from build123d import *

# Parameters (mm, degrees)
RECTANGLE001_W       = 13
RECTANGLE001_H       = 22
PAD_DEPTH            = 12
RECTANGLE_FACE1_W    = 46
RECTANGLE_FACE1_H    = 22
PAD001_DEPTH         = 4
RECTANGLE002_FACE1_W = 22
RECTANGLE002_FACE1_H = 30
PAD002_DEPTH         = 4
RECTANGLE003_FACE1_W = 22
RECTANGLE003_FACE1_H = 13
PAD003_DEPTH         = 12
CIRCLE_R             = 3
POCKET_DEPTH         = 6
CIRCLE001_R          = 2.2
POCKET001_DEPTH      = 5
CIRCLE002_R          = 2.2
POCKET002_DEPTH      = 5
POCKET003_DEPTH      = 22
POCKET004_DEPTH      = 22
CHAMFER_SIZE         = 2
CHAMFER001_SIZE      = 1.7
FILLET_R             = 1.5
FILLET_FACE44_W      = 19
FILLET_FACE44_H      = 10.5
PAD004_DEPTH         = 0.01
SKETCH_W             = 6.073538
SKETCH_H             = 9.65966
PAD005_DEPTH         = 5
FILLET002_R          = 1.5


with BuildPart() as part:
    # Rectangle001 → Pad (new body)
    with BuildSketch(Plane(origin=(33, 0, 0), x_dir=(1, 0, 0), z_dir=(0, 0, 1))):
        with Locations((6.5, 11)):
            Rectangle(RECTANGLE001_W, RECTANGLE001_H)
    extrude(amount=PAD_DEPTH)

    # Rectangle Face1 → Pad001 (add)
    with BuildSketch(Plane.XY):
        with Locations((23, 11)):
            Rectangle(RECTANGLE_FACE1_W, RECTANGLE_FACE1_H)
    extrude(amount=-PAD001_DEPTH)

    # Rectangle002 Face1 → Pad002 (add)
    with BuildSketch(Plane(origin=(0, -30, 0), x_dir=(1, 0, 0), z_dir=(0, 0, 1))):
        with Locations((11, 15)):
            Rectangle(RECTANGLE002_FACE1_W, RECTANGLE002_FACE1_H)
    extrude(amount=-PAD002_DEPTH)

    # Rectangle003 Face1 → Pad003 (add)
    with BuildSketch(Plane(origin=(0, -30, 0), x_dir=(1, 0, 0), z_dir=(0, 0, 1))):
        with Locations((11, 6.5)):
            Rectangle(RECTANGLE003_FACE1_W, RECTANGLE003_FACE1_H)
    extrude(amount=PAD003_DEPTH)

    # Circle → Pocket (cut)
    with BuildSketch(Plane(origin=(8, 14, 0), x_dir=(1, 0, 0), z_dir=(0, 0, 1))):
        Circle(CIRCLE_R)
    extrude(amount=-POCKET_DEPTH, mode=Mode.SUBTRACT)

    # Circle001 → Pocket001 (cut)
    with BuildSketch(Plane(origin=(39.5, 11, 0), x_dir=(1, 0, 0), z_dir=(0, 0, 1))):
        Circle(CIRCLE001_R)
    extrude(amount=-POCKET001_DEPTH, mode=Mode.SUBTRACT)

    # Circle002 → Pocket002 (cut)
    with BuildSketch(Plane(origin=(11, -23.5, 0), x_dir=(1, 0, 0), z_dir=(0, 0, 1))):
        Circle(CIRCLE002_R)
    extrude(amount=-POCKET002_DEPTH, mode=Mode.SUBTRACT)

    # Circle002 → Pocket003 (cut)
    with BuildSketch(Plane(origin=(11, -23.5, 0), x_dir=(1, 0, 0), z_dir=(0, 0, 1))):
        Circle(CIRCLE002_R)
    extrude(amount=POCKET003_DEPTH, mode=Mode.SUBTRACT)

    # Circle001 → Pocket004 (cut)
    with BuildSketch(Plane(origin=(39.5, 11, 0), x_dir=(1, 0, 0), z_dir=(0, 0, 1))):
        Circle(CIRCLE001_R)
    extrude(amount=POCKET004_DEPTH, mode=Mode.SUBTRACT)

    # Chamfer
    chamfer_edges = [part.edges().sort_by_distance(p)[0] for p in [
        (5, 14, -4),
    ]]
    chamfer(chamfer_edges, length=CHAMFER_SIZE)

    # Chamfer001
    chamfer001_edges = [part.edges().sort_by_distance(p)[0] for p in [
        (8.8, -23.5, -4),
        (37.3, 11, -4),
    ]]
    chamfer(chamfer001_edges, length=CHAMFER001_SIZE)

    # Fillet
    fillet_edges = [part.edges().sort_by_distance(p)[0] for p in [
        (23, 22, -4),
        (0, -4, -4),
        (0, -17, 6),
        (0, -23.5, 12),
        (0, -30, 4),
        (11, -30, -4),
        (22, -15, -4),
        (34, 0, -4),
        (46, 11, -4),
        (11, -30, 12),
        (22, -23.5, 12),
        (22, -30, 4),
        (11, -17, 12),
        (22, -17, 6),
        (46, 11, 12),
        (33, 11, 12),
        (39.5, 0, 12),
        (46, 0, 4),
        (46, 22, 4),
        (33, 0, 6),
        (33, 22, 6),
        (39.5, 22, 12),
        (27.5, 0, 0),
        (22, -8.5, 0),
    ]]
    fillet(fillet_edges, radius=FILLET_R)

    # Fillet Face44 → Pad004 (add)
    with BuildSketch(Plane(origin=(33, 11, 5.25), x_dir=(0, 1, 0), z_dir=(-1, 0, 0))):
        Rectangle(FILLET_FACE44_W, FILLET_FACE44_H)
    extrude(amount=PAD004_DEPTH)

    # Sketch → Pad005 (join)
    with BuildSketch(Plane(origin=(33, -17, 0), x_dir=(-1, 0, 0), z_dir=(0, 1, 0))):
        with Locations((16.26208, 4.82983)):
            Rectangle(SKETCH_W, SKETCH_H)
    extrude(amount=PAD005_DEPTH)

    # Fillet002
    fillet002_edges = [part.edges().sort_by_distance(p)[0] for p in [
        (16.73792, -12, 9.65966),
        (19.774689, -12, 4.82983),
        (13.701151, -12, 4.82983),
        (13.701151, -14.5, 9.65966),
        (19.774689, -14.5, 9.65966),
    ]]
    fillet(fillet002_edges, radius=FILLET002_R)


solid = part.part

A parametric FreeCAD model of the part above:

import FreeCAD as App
import Part
import Sketcher


def edges_at(feature, points):
    """Names of the edges that pass closest to the given points."""
    edges = feature.Shape.Edges
    near = lambda p: min(range(len(edges)), key=lambda i: edges[i].distToShape(Part.Vertex(*p))[0])
    return sorted({f"Edge{near(p) + 1}" for p in points})

doc = App.newDocument("Part")
body = doc.addObject("PartDesign::Body", "Body")

sketch1 = body.newObject("Sketcher::SketchObject", "Sketch")
sketch1.AttachmentSupport = (doc.getObject("XY_Plane"), [""])
sketch1.MapMode = "FlatFace"
sketch1.addGeometry([
    Part.LineSegment(App.Vector(33, 22, 0), App.Vector(33, 0, 0)),
    Part.LineSegment(App.Vector(33, 0, 0), App.Vector(46, 0, 0)),
    Part.LineSegment(App.Vector(46, 0, 0), App.Vector(46, 22, 0)),
    Part.LineSegment(App.Vector(46, 22, 0), App.Vector(33, 22, 0)),
], False)
sketch1.addConstraint([
    Sketcher.Constraint("Coincident", 0, 2, 1, 1),
    Sketcher.Constraint("Coincident", 1, 2, 2, 1),
    Sketcher.Constraint("Coincident", 2, 2, 3, 1),
    Sketcher.Constraint("Coincident", 3, 2, 0, 1),
    Sketcher.Constraint("Vertical", 0),
    Sketcher.Constraint("Horizontal", 1),
    Sketcher.Constraint("Vertical", 2),
    Sketcher.Constraint("Horizontal", 3),
    Sketcher.Constraint("PointOnObject", 0, 2, -1),
    Sketcher.Constraint("DistanceX", 1, 1, 1, 2, 13.0),
    Sketcher.Constraint("DistanceY", 0, 2, 0, 1, 22.0),
    Sketcher.Constraint("DistanceX", -1, 1, 0, 2, 33.0),
])
pad1 = body.newObject("PartDesign::Pad", "Pad")
pad1.Profile = sketch1
pad1.Length = 12

sketch2 = body.newObject("Sketcher::SketchObject", "Sketch001")
sketch2.AttachmentSupport = (doc.getObject("XY_Plane"), [""])
sketch2.MapMode = "FlatFace"
sketch2.addGeometry([
    Part.LineSegment(App.Vector(0, 22, 0), App.Vector(0, 0, 0)),
    Part.LineSegment(App.Vector(0, 0, 0), App.Vector(46, 0, 0)),
    Part.LineSegment(App.Vector(46, 0, 0), App.Vector(46, 22, 0)),
    Part.LineSegment(App.Vector(46, 22, 0), App.Vector(0, 22, 0)),
], False)
sketch2.addConstraint([
    Sketcher.Constraint("Coincident", 0, 2, 1, 1),
    Sketcher.Constraint("Coincident", 1, 2, 2, 1),
    Sketcher.Constraint("Coincident", 2, 2, 3, 1),
    Sketcher.Constraint("Coincident", 3, 2, 0, 1),
    Sketcher.Constraint("Vertical", 0),
    Sketcher.Constraint("Horizontal", 1),
    Sketcher.Constraint("Vertical", 2),
    Sketcher.Constraint("Horizontal", 3),
    Sketcher.Constraint("Coincident", 0, 2, -1, 1),
    Sketcher.Constraint("DistanceX", 1, 1, 1, 2, 46.0),
    Sketcher.Constraint("DistanceY", 0, 2, 0, 1, 22.0),
])
pad2 = body.newObject("PartDesign::Pad", "Pad001")
pad2.Profile = sketch2
pad2.Length = 4
pad2.Reversed = True

sketch3 = body.newObject("Sketcher::SketchObject", "Sketch002")
sketch3.AttachmentSupport = (doc.getObject("XY_Plane"), [""])
sketch3.MapMode = "FlatFace"
sketch3.addGeometry([
    Part.LineSegment(App.Vector(0, 0, 0), App.Vector(0, -30, 0)),
    Part.LineSegment(App.Vector(0, -30, 0), App.Vector(22, -30, 0)),
    Part.LineSegment(App.Vector(22, -30, 0), App.Vector(22, 0, 0)),
    Part.LineSegment(App.Vector(22, 0, 0), App.Vector(0, 0, 0)),
], False)
sketch3.addConstraint([
    Sketcher.Constraint("Coincident", 0, 2, 1, 1),
    Sketcher.Constraint("Coincident", 1, 2, 2, 1),
    Sketcher.Constraint("Coincident", 2, 2, 3, 1),
    Sketcher.Constraint("Coincident", 3, 2, 0, 1),
    Sketcher.Constraint("Vertical", 0),
    Sketcher.Constraint("Horizontal", 1),
    Sketcher.Constraint("Vertical", 2),
    Sketcher.Constraint("Horizontal", 3),
    Sketcher.Constraint("Coincident", 3, 2, -1, 1),
    Sketcher.Constraint("DistanceX", 1, 1, 1, 2, 22.0),
    Sketcher.Constraint("DistanceY", 0, 2, 0, 1, 30.0),
])
pad3 = body.newObject("PartDesign::Pad", "Pad002")
pad3.Profile = sketch3
pad3.Length = 4
pad3.Reversed = True

sketch4 = body.newObject("Sketcher::SketchObject", "Sketch003")
sketch4.AttachmentSupport = (doc.getObject("XY_Plane"), [""])
sketch4.MapMode = "FlatFace"
sketch4.addGeometry([
    Part.LineSegment(App.Vector(0, -17, 0), App.Vector(0, -30, 0)),
    Part.LineSegment(App.Vector(0, -30, 0), App.Vector(22, -30, 0)),
    Part.LineSegment(App.Vector(22, -30, 0), App.Vector(22, -17, 0)),
    Part.LineSegment(App.Vector(22, -17, 0), App.Vector(0, -17, 0)),
], False)
sketch4.addConstraint([
    Sketcher.Constraint("Coincident", 0, 2, 1, 1),
    Sketcher.Constraint("Coincident", 1, 2, 2, 1),
    Sketcher.Constraint("Coincident", 2, 2, 3, 1),
    Sketcher.Constraint("Coincident", 3, 2, 0, 1),
    Sketcher.Constraint("Vertical", 0),
    Sketcher.Constraint("Horizontal", 1),
    Sketcher.Constraint("Vertical", 2),
    Sketcher.Constraint("Horizontal", 3),
    Sketcher.Constraint("PointOnObject", 0, 2, -2),
    Sketcher.Constraint("DistanceX", 1, 1, 1, 2, 22.0),
    Sketcher.Constraint("DistanceY", 0, 2, 0, 1, 13.0),
    Sketcher.Constraint("DistanceY", 0, 2, -1, 1, 30.0),
])
pad4 = body.newObject("PartDesign::Pad", "Pad003")
pad4.Profile = sketch4
pad4.Length = 12

sketch5 = body.newObject("Sketcher::SketchObject", "Sketch004")
sketch5.AttachmentSupport = (doc.getObject("XY_Plane"), [""])
sketch5.MapMode = "FlatFace"
sketch5.addGeometry(Part.Circle(App.Vector(8, 14, 0), App.Vector(0, 0, 1), 3), False)
sketch5.addConstraint([
    Sketcher.Constraint("Diameter", 0, 6.0),
    Sketcher.Constraint("DistanceX", -1, 1, 0, 3, 8.0),
    Sketcher.Constraint("DistanceY", -1, 1, 0, 3, 14.0),
])
pocket1 = body.newObject("PartDesign::Pocket", "Pocket")
pocket1.Profile = sketch5
pocket1.Length = 6

sketch6 = body.newObject("Sketcher::SketchObject", "Sketch005")
sketch6.AttachmentSupport = (doc.getObject("XY_Plane"), [""])
sketch6.MapMode = "FlatFace"
sketch6.addGeometry(Part.Circle(App.Vector(39.5, 11, 0), App.Vector(0, 0, 1), 2.2), False)
sketch6.addConstraint([
    Sketcher.Constraint("Diameter", 0, 4.4),
    Sketcher.Constraint("DistanceY", -1, 1, 0, 3, 11.0),
    Sketcher.Constraint("DistanceX", -1, 1, 0, 3, 39.5),
])
pocket2 = body.newObject("PartDesign::Pocket", "Pocket001")
pocket2.Profile = sketch6
pocket2.Length = 5

sketch7 = body.newObject("Sketcher::SketchObject", "Sketch006")
sketch7.AttachmentSupport = (doc.getObject("XY_Plane"), [""])
sketch7.MapMode = "FlatFace"
sketch7.addGeometry(Part.Circle(App.Vector(11, -23.5, 0), App.Vector(0, 0, 1), 2.2), False)
sketch7.addConstraint([
    Sketcher.Constraint("Diameter", 0, 4.4),
    Sketcher.Constraint("DistanceX", -1, 1, 0, 3, 11.0),
    Sketcher.Constraint("DistanceY", 0, 3, -1, 1, 23.5),
])
pocket3 = body.newObject("PartDesign::Pocket", "Pocket002")
pocket3.Profile = sketch7
pocket3.Length = 5

sketch8 = body.newObject("Sketcher::SketchObject", "Sketch007")
sketch8.AttachmentSupport = (doc.getObject("XY_Plane"), [""])
sketch8.MapMode = "FlatFace"
sketch8.addGeometry(Part.Circle(App.Vector(11, -23.5, 0), App.Vector(0, 0, 1), 2.2), False)
sketch8.addConstraint([
    Sketcher.Constraint("Diameter", 0, 4.4),
    Sketcher.Constraint("DistanceX", -1, 1, 0, 3, 11.0),
    Sketcher.Constraint("DistanceY", 0, 3, -1, 1, 23.5),
])
pocket4 = body.newObject("PartDesign::Pocket", "Pocket003")
pocket4.Profile = sketch8
pocket4.Length = 22
pocket4.Reversed = True

sketch9 = body.newObject("Sketcher::SketchObject", "Sketch008")
sketch9.AttachmentSupport = (doc.getObject("XY_Plane"), [""])
sketch9.MapMode = "FlatFace"
sketch9.addGeometry(Part.Circle(App.Vector(39.5, 11, 0), App.Vector(0, 0, 1), 2.2), False)
sketch9.addConstraint([
    Sketcher.Constraint("Diameter", 0, 4.4),
    Sketcher.Constraint("DistanceY", -1, 1, 0, 3, 11.0),
    Sketcher.Constraint("DistanceX", -1, 1, 0, 3, 39.5),
])
pocket5 = body.newObject("PartDesign::Pocket", "Pocket004")
pocket5.Profile = sketch9
pocket5.Length = 22
pocket5.Reversed = True
doc.recompute()

chamfer = body.newObject("PartDesign::Chamfer", "Chamfer")
chamfer.Base = (pocket5, edges_at(pocket5, [(5, 14, -4)]))
chamfer.Size = 2
doc.recompute()

chamfer2 = body.newObject("PartDesign::Chamfer", "Chamfer001")
chamfer2.Base = (chamfer, edges_at(chamfer, [(8.8, -23.5, -4), (37.3, 11, -4)]))
chamfer2.Size = 1.7
doc.recompute()

fillet = body.newObject("PartDesign::Fillet", "Fillet")
fillet.Base = (chamfer2, edges_at(chamfer2, [
    (23, 22, -4),
    (0, -4, -4),
    (0, -17, 6),
    (0, -23.5, 12),
    (0, -30, 4),
    (11, -30, -4),
    (22, -15, -4),
    (34, 0, -4),
    (46, 11, -4),
    (11, -30, 12),
    (22, -23.5, 12),
    (22, -30, 4),
    (11, -17, 12),
    (22, -17, 6),
    (46, 11, 12),
    (33, 11, 12),
    (39.5, 0, 12),
    (46, 0, 4),
    (46, 22, 4),
    (33, 0, 6),
    (33, 22, 6),
    (39.5, 22, 12),
    (27.5, 0, 0),
    (22, -8.5, 0),
]))
fillet.Radius = 1.5

sketch10 = body.newObject("Sketcher::SketchObject", "Sketch009")
sketch10.AttachmentSupport = (doc.getObject("YZ_Plane"), [""])
sketch10.MapMode = "FlatFace"
sketch10.AttachmentOffset = App.Placement(App.Vector(0, 0, 33), App.Rotation())
sketch10.addGeometry([
    Part.LineSegment(App.Vector(2, 0, 0), App.Vector(2, 10, 0)),
    Part.LineSegment(App.Vector(2, 10, 0), App.Vector(20, 10, 0)),
    Part.LineSegment(App.Vector(20, 10, 0), App.Vector(20, 0, 0)),
    Part.LineSegment(App.Vector(20, 0, 0), App.Vector(2, 0, 0)),
], False)
sketch10.addConstraint([
    Sketcher.Constraint("Coincident", 0, 2, 1, 1),
    Sketcher.Constraint("Coincident", 1, 2, 2, 1),
    Sketcher.Constraint("Coincident", 2, 2, 3, 1),
    Sketcher.Constraint("Coincident", 3, 2, 0, 1),
    Sketcher.Constraint("Vertical", 0),
    Sketcher.Constraint("Horizontal", 1),
    Sketcher.Constraint("Vertical", 2),
    Sketcher.Constraint("Horizontal", 3),
    Sketcher.Constraint("PointOnObject", 2, 2, -1),
    Sketcher.Constraint("DistanceX", 1, 1, 1, 2, 19.0),
    Sketcher.Constraint("DistanceY", 0, 1, 0, 2, 10.5),
    Sketcher.Constraint("DistanceX", -1, 1, 0, 2, 1.5),
])
pad5 = body.newObject("PartDesign::Pad", "Pad004")
pad5.Profile = sketch10
pad5.Length = 0.01
pad5.Reversed = True

sketch11 = body.newObject("Sketcher::SketchObject", "Sketch010")
sketch11.AttachmentSupport = (doc.getObject("XZ_Plane"), [""])
sketch11.MapMode = "FlatFace"
sketch11.AttachmentOffset = App.Placement(App.Vector(0, 0, 17), App.Rotation())
sketch11.addGeometry([
    Part.LineSegment(App.Vector(20, 10, 0), App.Vector(20, 0, 0)),
    Part.LineSegment(App.Vector(20, 0, 0), App.Vector(14, 0, 0)),
    Part.LineSegment(App.Vector(14, 0, 0), App.Vector(14, 10, 0)),
    Part.LineSegment(App.Vector(14, 10, 0), App.Vector(20, 10, 0)),
], False)
sketch11.addConstraint([
    Sketcher.Constraint("Coincident", 0, 2, 1, 1),
    Sketcher.Constraint("Coincident", 1, 2, 2, 1),
    Sketcher.Constraint("Coincident", 2, 2, 3, 1),
    Sketcher.Constraint("Coincident", 3, 2, 0, 1),
    Sketcher.Constraint("Vertical", 0),
    Sketcher.Constraint("Horizontal", 1),
    Sketcher.Constraint("Vertical", 2),
    Sketcher.Constraint("Horizontal", 3),
    Sketcher.Constraint("PointOnObject", 0, 2, -1),
    Sketcher.Constraint("DistanceY", 0, 2, 0, 1, 9.65966),
    Sketcher.Constraint("DistanceX", 1, 2, 1, 1, 6.073538),
    Sketcher.Constraint("DistanceX", -1, 1, 0, 2, 19.774689),
])
pad6 = body.newObject("PartDesign::Pad", "Pad005")
pad6.Profile = sketch11
pad6.Length = 5
pad6.Reversed = True
doc.recompute()

fillet2 = body.newObject("PartDesign::Fillet", "Fillet001")
fillet2.Base = (pad6, edges_at(pad6, [
    (16.738, -12, 9.66),
    (19.775, -12, 4.83),
    (13.701, -12, 4.83),
    (13.701, -14.5, 9.66),
    (19.775, -14.5, 9.66),
]))
fillet2.Radius = 1.5

doc.recompute()
